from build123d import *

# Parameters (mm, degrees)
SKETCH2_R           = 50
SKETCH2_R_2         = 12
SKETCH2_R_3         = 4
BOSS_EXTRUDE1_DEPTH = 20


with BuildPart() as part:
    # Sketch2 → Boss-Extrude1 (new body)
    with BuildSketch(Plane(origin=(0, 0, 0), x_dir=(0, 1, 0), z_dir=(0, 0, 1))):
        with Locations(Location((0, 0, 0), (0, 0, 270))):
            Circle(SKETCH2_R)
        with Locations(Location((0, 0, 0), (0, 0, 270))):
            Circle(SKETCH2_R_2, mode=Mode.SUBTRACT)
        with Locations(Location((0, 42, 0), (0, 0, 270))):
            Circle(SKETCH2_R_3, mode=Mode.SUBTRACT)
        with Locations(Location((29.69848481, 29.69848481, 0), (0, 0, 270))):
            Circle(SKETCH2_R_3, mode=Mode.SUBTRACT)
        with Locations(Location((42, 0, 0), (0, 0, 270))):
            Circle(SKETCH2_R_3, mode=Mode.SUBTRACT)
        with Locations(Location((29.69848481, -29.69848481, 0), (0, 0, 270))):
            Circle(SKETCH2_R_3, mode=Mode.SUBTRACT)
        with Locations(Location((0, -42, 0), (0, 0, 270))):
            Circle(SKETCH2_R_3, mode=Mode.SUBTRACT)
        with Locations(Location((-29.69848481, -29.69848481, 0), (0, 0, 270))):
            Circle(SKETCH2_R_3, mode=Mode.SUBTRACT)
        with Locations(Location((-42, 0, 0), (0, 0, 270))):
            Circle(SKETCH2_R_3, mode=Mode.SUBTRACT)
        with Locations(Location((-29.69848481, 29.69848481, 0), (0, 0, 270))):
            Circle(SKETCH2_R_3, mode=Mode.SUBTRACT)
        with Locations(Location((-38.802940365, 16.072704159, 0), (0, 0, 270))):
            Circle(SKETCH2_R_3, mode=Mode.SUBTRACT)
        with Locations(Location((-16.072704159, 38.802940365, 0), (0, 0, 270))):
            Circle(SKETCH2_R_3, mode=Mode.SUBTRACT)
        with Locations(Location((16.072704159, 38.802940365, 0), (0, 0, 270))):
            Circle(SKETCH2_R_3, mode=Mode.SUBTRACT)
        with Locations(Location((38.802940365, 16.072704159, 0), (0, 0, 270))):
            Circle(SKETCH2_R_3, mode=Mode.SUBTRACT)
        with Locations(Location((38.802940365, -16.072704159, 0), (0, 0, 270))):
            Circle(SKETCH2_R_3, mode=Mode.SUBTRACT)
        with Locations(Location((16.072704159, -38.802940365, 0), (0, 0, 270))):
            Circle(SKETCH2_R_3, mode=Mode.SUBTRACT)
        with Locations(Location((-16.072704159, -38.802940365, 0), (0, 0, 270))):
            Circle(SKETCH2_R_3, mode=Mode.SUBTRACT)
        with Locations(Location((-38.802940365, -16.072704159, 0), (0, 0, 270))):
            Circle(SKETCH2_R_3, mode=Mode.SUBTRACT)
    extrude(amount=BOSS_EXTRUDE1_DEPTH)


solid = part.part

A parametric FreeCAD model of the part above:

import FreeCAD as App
import Part
import Sketcher
Q = App.Units.Quantity

doc = App.newDocument("Part")
body = doc.addObject("PartDesign::Body", "Body")

sketch1 = body.newObject("Sketcher::SketchObject", "Sketch")
sketch1.AttachmentSupport = (doc.getObject("XY_Plane"), [""])
sketch1.MapMode = "FlatFace"
sketch1.addGeometry(Part.Circle(App.Vector(0, 0, 0), App.Vector(0, 0, 1), 50), False)
sketch1.addGeometry(Part.Circle(App.Vector(-29.698485, -29.698485, 0), App.Vector(0, 0, 1), 4), False)
sketch1.addGeometry(Part.Circle(App.Vector(-16.072704, -38.80294, 0), App.Vector(0, 0, 1), 4), False)
sketch1.addGeometry(Part.Circle(App.Vector(-38.80294, -16.072704, 0), App.Vector(0, 0, 1), 4), False)
sketch1.addGeometry(Part.Circle(App.Vector(-42, 0, 0), App.Vector(0, 0, 1), 4), False)
sketch1.addGeometry(Part.Circle(App.Vector(0, -42, 0), App.Vector(0, 0, 1), 4), False)
sketch1.addGeometry(Part.Circle(App.Vector(16.072704, -38.80294, 0), App.Vector(0, 0, 1), 4), False)
sketch1.addGeometry(Part.Circle(App.Vector(29.698485, -29.698485, 0), App.Vector(0, 0, 1), 4), False)
sketch1.addGeometry(Part.Circle(App.Vector(38.80294, -16.072704, 0), App.Vector(0, 0, 1), 4), False)
sketch1.addGeometry(Part.Circle(App.Vector(-38.80294, 16.072704, 0), App.Vector(0, 0, 1), 4), False)
sketch1.addGeometry(Part.Circle(App.Vector(-29.698485, 29.698485, 0), App.Vector(0, 0, 1), 4), False)
sketch1.addGeometry(Part.Circle(App.Vector(-16.072704, 38.80294, 0), App.Vector(0, 0, 1), 4), False)
sketch1.addGeometry(Part.Circle(App.Vector(0, 42, 0), App.Vector(0, 0, 1), 4), False)
sketch1.addGeometry(Part.Circle(App.Vector(0, 0, 0), App.Vector(0, 0, 1), 12), False)
sketch1.addGeometry(Part.Circle(App.Vector(42, 0, 0), App.Vector(0, 0, 1), 4), False)
sketch1.addGeometry(Part.Circle(App.Vector(38.80294, 16.072704, 0), App.Vector(0, 0, 1), 4), False)
sketch1.addGeometry(Part.Circle(App.Vector(16.072704, 38.80294, 0), App.Vector(0, 0, 1), 4), False)
sketch1.addGeometry(Part.Circle(App.Vector(29.698485, 29.698485, 0), App.Vector(0, 0, 1), 4), False)
sketch1.addConstraint(Sketcher.Constraint("Coincident", 0, 3, -1, 1))
sketch1.addConstraint(Sketcher.Constraint("Coincident", 13, 3, -1, 1))
sketch1.addConstraint(Sketcher.Constraint("Equal", 1, 2))
sketch1.addConstraint(Sketcher.Constraint("Equal", 2, 3))
sketch1.addConstraint(Sketcher.Constraint("Equal", 3, 4))
sketch1.addConstraint(Sketcher.Constraint("Equal", 4, 5))
sketch1.addConstraint(Sketcher.Constraint("Equal", 5, 6))
sketch1.addConstraint(Sketcher.Constraint("Equal", 6, 7))
sketch1.addConstraint(Sketcher.Constraint("Equal", 7, 8))
sketch1.addConstraint(Sketcher.Constraint("Equal", 8, 9))
sketch1.addConstraint(Sketcher.Constraint("Equal", 9, 10))
sketch1.addConstraint(Sketcher.Constraint("Equal", 10, 11))
sketch1.addConstraint(Sketcher.Constraint("Equal", 11, 12))
sketch1.addConstraint(Sketcher.Constraint("Equal", 12, 14))
sketch1.addConstraint(Sketcher.Constraint("Equal", 14, 15))
sketch1.addConstraint(Sketcher.Constraint("Equal", 15, 16))
sketch1.addConstraint(Sketcher.Constraint("Equal", 16, 17))
sketch1.addConstraint(Sketcher.Constraint("Symmetric", 8, 3, 9, 3, -1, 1))
sketch1.addConstraint(Sketcher.Constraint("Symmetric", 7, 3, 10, 3, -1, 1))
sketch1.addConstraint(Sketcher.Constraint("Symmetric", 6, 3, 11, 3, -1, 1))
sketch1.addConstraint(Sketcher.Constraint("Symmetric", 5, 3, 12, 3, -1, 1))
sketch1.addConstraint(Sketcher.Constraint("Symmetric", 4, 3, 14, 3, -1, 1))
sketch1.addConstraint(Sketcher.Constraint("Symmetric", 3, 3, 15, 3, -1, 1))
sketch1.addConstraint(Sketcher.Constraint("Symmetric", 2, 3, 16, 3, -1, 1))
sketch1.addConstraint(Sketcher.Constraint("Symmetric", 1, 3, 17, 3, -1, 1))
sketch1.addConstraint(Sketcher.Constraint("Symmetric", 2, 3, 6, 3, -2))
sketch1.addConstraint(Sketcher.Constraint("Symmetric", 1, 3, 7, 3, -2))
sketch1.addConstraint(Sketcher.Constraint("Symmetric", 3, 3, 8, 3, -2))
sketch1.addConstraint(Sketcher.Constraint("PointOnObject", 4, 3, -1))
sketch1.addConstraint(Sketcher.Constraint("PointOnObject", 5, 3, -2))
sketch1.addConstraint(Sketcher.Constraint("Diameter", 0, Q("100 mm")))
sketch1.addConstraint(Sketcher.Constraint("Diameter", 1, Q("8 mm")))
sketch1.addConstraint(Sketcher.Constraint("Diameter", 13, Q("24 mm")))
sketch1.addConstraint(Sketcher.Constraint("DistanceX", 4, 3, -1, 1, Q("42 mm")))
sketch1.addConstraint(Sketcher.Constraint("DistanceY", 5, 3, -1, 1, Q("42 mm")))
sketch1.addConstraint(Sketcher.Constraint("DistanceY", 2, 3, -1, 1, Q("38.80294 mm")))
sketch1.addConstraint(Sketcher.Constraint("DistanceX", 3, 3, -1, 1, Q("38.80294 mm")))
sketch1.addConstraint(Sketcher.Constraint("DistanceX", 1, 3, 2, 3, Q("13.625781 mm")))
sketch1.addConstraint(Sketcher.Constraint("DistanceY", 1, 3, 3, 3, Q("13.625781 mm")))
sketch1.addConstraint(Sketcher.Constraint("DistanceX", 2, 3, 6, 3, Q("32.145408 mm")))
sketch1.addConstraint(Sketcher.Constraint("DistanceY", 3, 3, 9, 3, Q("32.145408 mm")))
pad1 = body.newObject("PartDesign::Pad", "Pad")
pad1.Profile = sketch1
pad1.Length = 20

doc.recompute()
